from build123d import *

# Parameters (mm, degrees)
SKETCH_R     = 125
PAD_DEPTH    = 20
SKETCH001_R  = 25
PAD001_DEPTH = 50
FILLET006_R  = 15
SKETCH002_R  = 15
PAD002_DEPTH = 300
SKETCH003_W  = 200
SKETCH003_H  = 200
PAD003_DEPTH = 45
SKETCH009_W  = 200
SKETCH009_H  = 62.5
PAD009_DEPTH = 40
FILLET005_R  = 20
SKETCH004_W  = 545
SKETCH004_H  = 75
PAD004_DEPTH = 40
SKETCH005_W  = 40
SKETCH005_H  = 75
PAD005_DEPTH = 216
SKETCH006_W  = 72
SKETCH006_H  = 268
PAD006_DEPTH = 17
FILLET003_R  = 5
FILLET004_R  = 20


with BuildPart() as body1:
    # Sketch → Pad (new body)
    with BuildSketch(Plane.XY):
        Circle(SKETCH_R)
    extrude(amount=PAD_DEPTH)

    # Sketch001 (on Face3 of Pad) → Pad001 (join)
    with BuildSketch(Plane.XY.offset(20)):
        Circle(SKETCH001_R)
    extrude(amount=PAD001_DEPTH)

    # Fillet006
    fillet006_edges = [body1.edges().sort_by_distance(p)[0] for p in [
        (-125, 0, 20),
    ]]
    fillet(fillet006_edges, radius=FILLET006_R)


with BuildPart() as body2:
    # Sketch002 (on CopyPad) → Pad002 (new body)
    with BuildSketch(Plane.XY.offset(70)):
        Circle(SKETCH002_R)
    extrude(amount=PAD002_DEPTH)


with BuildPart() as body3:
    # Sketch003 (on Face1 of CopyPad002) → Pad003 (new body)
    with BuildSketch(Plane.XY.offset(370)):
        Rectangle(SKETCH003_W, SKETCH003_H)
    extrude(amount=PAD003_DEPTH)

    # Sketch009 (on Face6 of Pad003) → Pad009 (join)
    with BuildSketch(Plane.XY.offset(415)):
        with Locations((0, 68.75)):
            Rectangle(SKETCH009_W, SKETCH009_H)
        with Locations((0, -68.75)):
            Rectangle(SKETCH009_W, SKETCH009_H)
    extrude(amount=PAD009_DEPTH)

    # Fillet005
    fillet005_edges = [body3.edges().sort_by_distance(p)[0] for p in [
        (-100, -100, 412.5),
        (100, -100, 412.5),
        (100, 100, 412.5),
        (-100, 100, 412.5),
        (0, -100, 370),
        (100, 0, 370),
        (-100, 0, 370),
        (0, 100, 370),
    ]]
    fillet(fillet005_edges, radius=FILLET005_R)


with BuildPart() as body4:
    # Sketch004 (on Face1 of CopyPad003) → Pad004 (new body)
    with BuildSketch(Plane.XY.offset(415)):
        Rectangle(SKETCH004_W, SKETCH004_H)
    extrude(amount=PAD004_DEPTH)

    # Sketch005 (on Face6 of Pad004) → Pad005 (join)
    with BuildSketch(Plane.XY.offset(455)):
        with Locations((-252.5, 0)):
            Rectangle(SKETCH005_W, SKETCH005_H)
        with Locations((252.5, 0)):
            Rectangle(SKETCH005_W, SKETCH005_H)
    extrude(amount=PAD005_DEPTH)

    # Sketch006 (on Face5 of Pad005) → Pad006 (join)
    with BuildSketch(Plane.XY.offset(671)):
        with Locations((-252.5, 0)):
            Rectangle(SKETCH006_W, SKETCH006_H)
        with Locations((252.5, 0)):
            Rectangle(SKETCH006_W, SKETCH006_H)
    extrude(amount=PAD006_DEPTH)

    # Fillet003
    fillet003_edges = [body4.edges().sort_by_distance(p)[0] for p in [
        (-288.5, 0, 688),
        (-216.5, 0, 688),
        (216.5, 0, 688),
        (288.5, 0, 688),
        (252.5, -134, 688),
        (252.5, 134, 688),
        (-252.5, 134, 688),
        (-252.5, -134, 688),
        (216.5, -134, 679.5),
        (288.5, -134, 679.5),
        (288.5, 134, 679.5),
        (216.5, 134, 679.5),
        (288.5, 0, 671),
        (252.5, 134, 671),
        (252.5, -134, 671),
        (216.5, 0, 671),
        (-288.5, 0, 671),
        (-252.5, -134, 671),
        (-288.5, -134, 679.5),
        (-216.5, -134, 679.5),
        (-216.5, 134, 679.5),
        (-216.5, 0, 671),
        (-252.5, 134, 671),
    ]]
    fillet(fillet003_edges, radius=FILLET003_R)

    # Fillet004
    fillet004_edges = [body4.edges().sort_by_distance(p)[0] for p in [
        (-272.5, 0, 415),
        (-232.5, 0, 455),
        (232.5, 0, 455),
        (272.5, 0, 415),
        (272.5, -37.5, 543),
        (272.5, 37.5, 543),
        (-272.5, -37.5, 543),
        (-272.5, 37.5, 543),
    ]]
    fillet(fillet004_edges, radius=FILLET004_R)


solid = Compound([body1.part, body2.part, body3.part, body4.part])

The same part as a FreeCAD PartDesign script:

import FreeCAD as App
import Part
import Sketcher
from FreeCAD import Vector
Q = App.Units.Quantity


def edges_at(feature, points):
    """Names of the edges that pass closest to the given points."""
    edges = feature.Shape.Edges
    near = lambda p: min(range(len(edges)), key=lambda i: edges[i].distToShape(Part.Vertex(*p))[0])
    return sorted({f"Edge{near(p) + 1}" for p in points})


def add_polygon(sketch, points):
    """Adds a closed chain of lines whose ends are joined by coincident constraints."""
    first, n = sketch.GeometryCount, len(points)
    for a, b in zip(points, points[1:] + points[:1]):
        sketch.addGeometry(Part.LineSegment(App.Vector(*a, 0), App.Vector(*b, 0)), False)
    for i in range(n):
        sketch.addConstraint(Sketcher.Constraint("Coincident", first + i, 2, first + (i + 1) % n, 1))

doc = App.newDocument("Part")
body = doc.addObject("PartDesign::Body", "Body")

# Sketch on XY plane
sketch1 = body.newObject("Sketcher::SketchObject", "Sketch")
sketch1.AttachmentSupport = (doc.getObject("XY_Plane"), [""])
sketch1.MapMode = "FlatFace"
sketch1.addGeometry(Part.Circle(Vector(0, 0, 0), Vector(0, 0, 1), 125), False)
sketch1.addConstraint([
    Sketcher.Constraint("Coincident", 0, 3, -1, 1),
    Sketcher.Constraint("Diameter", 0, Q("250 mm")),
])
pad1 = body.newObject("PartDesign::Pad", "Pad")
pad1.Profile = sketch1
pad1.Length = 20

# Sketch on XY plane
sketch2 = body.newObject("Sketcher::SketchObject", "Sketch001")
sketch2.AttachmentSupport = (doc.getObject("XY_Plane"), [""])
sketch2.MapMode = "FlatFace"
sketch2.AttachmentOffset = App.Placement(Vector(0, 0, 20), App.Rotation())
sketch2.addGeometry(Part.Circle(Vector(0, 0, 0), Vector(0, 0, 1), 25), False)
sketch2.addConstraint([
    Sketcher.Constraint("Coincident", 0, 3, -1, 1),
    Sketcher.Constraint("Diameter", 0, Q("50 mm")),
])
pad2 = body.newObject("PartDesign::Pad", "Pad001")
pad2.Profile = sketch2
pad2.Length = 50
doc.recompute()

fillet = body.newObject("PartDesign::Fillet", "Fillet")
fillet.Base = (pad2, edges_at(pad2, [(-125, 0, 20)]))
fillet.Radius = 15
body2 = doc.addObject("PartDesign::Body", "Body001")

# Sketch on XY plane
sketch3 = body2.newObject("Sketcher::SketchObject", "Sketch002")
sketch3.AttachmentSupport = (doc.getObject("XY_Plane001"), [""])
sketch3.MapMode = "FlatFace"
sketch3.AttachmentOffset = App.Placement(Vector(0, 0, 70), App.Rotation())
sketch3.addGeometry(Part.Circle(Vector(0, 0, 0), Vector(0, 0, 1), 15), False)
sketch3.addConstraint([
    Sketcher.Constraint("Coincident", 0, 3, -1, 1),
    Sketcher.Constraint("Diameter", 0, Q("30 mm")),
])
pad3 = body2.newObject("PartDesign::Pad", "Pad002")
pad3.Profile = sketch3
pad3.Length = 300
body3 = doc.addObject("PartDesign::Body", "Body002")

# Sketch on XY plane
sketch4 = body3.newObject("Sketcher::SketchObject", "Sketch003")
sketch4.AttachmentSupport = (doc.getObject("XY_Plane002"), [""])
sketch4.MapMode = "FlatFace"
sketch4.AttachmentOffset = App.Placement(Vector(0, 0, 370), App.Rotation())
add_polygon(sketch4, [(-100, 100), (-100, -100), (100, -100), (100, 100)])  # lines 0-3
sketch4.addConstraint([
    Sketcher.Constraint("Vertical", 0),
    Sketcher.Constraint("Horizontal", 1),
    Sketcher.Constraint("Vertical", 2),
    Sketcher.Constraint("Horizontal", 3),
    Sketcher.Constraint("Symmetric", 0, 2, 2, 2, -1, 1),
    Sketcher.Constraint("Equal", 3, 0),
    Sketcher.Constraint("DistanceX", 1, 1, 1, 2, Q("200 mm")),
])
pad4 = body3.newObject("PartDesign::Pad", "Pad003")
pad4.Profile = sketch4
pad4.Length = 45

# Sketch on XY plane
sketch5 = body3.newObject("Sketcher::SketchObject", "Sketch004")
sketch5.AttachmentSupport = (doc.getObject("XY_Plane002"), [""])
sketch5.MapMode = "FlatFace"
sketch5.AttachmentOffset = App.Placement(Vector(0, 0, 415), App.Rotation())
add_polygon(sketch5, [(-100, 100), (-100, 38), (100, 38), (100, 100)])  # lines 0-3
add_polygon(sketch5, [(-100, -38), (-100, -100), (100, -100), (100, -38)])  # lines 4-7
sketch5.addConstraint([
    Sketcher.Constraint("Vertical", 0),
    Sketcher.Constraint("Horizontal", 1),
    Sketcher.Constraint("Vertical", 2),
    Sketcher.Constraint("Horizontal", 3),
    Sketcher.Constraint("Vertical", 4),
    Sketcher.Constraint("Horizontal", 5),
    Sketcher.Constraint("Vertical", 6),
    Sketcher.Constraint("Horizontal", 7),
    Sketcher.Constraint("Symmetric", 2, 2, 4, 2, -1, 1),
    Sketcher.Constraint("Symmetric", 0, 2, 6, 2, -1, 1),
    Sketcher.Constraint("Vertical", 3, 2, 4, 2),
    Sketcher.Constraint("DistanceX", 1, 1, 1, 2, Q("200 mm")),
    Sketcher.Constraint("DistanceY", 0, 2, 0, 1, Q("62.5 mm")),
    Sketcher.Constraint("DistanceY", -1, 1, 2, 2, Q("100 mm")),
])
pad5 = body3.newObject("PartDesign::Pad", "Pad004")
pad5.Profile = sketch5
pad5.Length = 40
doc.recompute()

fillet2 = body3.newObject("PartDesign::Fillet", "Fillet001")
fillet2.Base = (pad5, edges_at(pad5, [
    (-100, -100, 412.5),
    (100, -100, 412.5),
    (100, 100, 412.5),
    (-100, 100, 412.5),
    (0, -100, 370),
    (100, 0, 370),
    (-100, 0, 370),
    (0, 100, 370),
]))
fillet2.Radius = 20
body4 = doc.addObject("PartDesign::Body", "Body003")

# Sketch on XY plane
sketch6 = body4.newObject("Sketcher::SketchObject", "Sketch005")
sketch6.AttachmentSupport = (doc.getObject("XY_Plane003"), [""])
sketch6.MapMode = "FlatFace"
sketch6.AttachmentOffset = App.Placement(Vector(0, 0, 415), App.Rotation())
add_polygon(sketch6, [(-272, 38), (-272, -38), (272, -38), (272, 38)])  # lines 0-3
sketch6.addConstraint([
    Sketcher.Constraint("Vertical", 0),
    Sketcher.Constraint("Horizontal", 1),
    Sketcher.Constraint("Vertical", 2),
    Sketcher.Constraint("Horizontal", 3),
    Sketcher.Constraint("Symmetric", 0, 2, 2, 2, -1, 1),
    Sketcher.Constraint("DistanceX", 1, 1, 1, 2, Q("545 mm")),
    Sketcher.Constraint("DistanceY", 0, 2, 0, 1, Q("75 mm")),
])
pad6 = body4.newObject("PartDesign::Pad", "Pad005")
pad6.Profile = sketch6
pad6.Length = 40

# Sketch on XY plane
sketch7 = body4.newObject("Sketcher::SketchObject", "Sketch006")
sketch7.AttachmentSupport = (doc.getObject("XY_Plane003"), [""])
sketch7.MapMode = "FlatFace"
sketch7.AttachmentOffset = App.Placement(Vector(0, 0, 455), App.Rotation())
add_polygon(sketch7, [(-272, 38), (-272, -38), (-232, -38), (-232, 38)])  # lines 0-3
add_polygon(sketch7, [(232, 38), (232, -38), (272, -38), (272, 38)])  # lines 4-7
sketch7.addConstraint([
    Sketcher.Constraint("Vertical", 0),
    Sketcher.Constraint("Horizontal", 1),
    Sketcher.Constraint("Vertical", 2),
    Sketcher.Constraint("Horizontal", 3),
    Sketcher.Constraint("Vertical", 4),
    Sketcher.Constraint("Horizontal", 5),
    Sketcher.Constraint("Vertical", 6),
    Sketcher.Constraint("Horizontal", 7),
    Sketcher.Constraint("Symmetric", 2, 2, 4, 2, -1, 1),
    Sketcher.Constraint("Symmetric", 0, 2, 6, 2, -1, 1),
    Sketcher.Constraint("Horizontal", 1, 2, 4, 2),
    Sketcher.Constraint("DistanceX", 1, 1, 1, 2, Q("40 mm")),
    Sketcher.Constraint("DistanceY", 0, 2, 0, 1, Q("75 mm")),
    Sketcher.Constraint("DistanceX", 1, 2, 4, 2, Q("465 mm")),
])
pad7 = body4.newObject("PartDesign::Pad", "Pad006")
pad7.Profile = sketch7
pad7.Length = 216

# Sketch on XY plane
sketch8 = body4.newObject("Sketcher::SketchObject", "Sketch007")
sketch8.AttachmentSupport = (doc.getObject("XY_Plane003"), [""])
sketch8.MapMode = "FlatFace"
sketch8.AttachmentOffset = App.Placement(Vector(0, 0, 671), App.Rotation())
add_polygon(sketch8, [(-288, 134), (-288, -134), (-216, -134), (-216, 134)])  # lines 0-3
add_polygon(sketch8, [(216, 134), (216, -134), (288, -134), (288, 134)])  # lines 4-7
sketch8.addConstraint([
    Sketcher.Constraint("Vertical", 0),
    Sketcher.Constraint("Horizontal", 1),
    Sketcher.Constraint("Vertical", 2),
    Sketcher.Constraint("Horizontal", 3),
    Sketcher.Constraint("Vertical", 4),
    Sketcher.Constraint("Horizontal", 5),
    Sketcher.Constraint("Vertical", 6),
    Sketcher.Constraint("Horizontal", 7),
    Sketcher.Constraint("Symmetric", 2, 2, 4, 2, -1, 1),
    Sketcher.Constraint("Symmetric", 0, 2, 6, 2, -1, 1),
    Sketcher.Constraint("Horizontal", 1, 2, 4, 2),
    Sketcher.Constraint("DistanceX", 1, 1, 1, 2, Q("72 mm")),
    Sketcher.Constraint("DistanceY", 0, 2, 0, 1, Q("268 mm")),
    Sketcher.Constraint("DistanceX", 1, 2, 4, 2, Q("433 mm")),
])
pad8 = body4.newObject("PartDesign::Pad", "Pad007")
pad8.Profile = sketch8
pad8.Length = 17
doc.recompute()

fillet3 = body4.newObject("PartDesign::Fillet", "Fillet002")
fillet3.Base = (pad8, edges_at(pad8, [
    (-288.5, 0, 688),
    (-216.5, 0, 688),
    (216.5, 0, 688),
    (288.5, 0, 688),
    (252.5, -134, 688),
    (252.5, 134, 688),
    (-252.5, 134, 688),
    (-252.5, -134, 688),
    (216.5, -134, 679.5),
    (288.5, -134, 679.5),
    (288.5, 134, 679.5),
    (216.5, 134, 679.5),
    (288.5, 0, 671),
    (252.5, 134, 671),
    (252.5, -134, 671),
    (216.5, 0, 671),
    (-288.5, 0, 671),
    (-252.5, -134, 671),
    (-288.5, -134, 679.5),
    (-216.5, -134, 679.5),
    (-216.5, 134, 679.5),
    (-216.5, 0, 671),
    (-252.5, 134, 671),
]))
fillet3.Radius = 5
doc.recompute()

fillet4 = body4.newObject("PartDesign::Fillet", "Fillet003")
fillet4.Base = (fillet3, edges_at(fillet3, [
    (-272.5, 0, 415),
    (-232.5, 0, 455),
    (232.5, 0, 455),
    (272.5, 0, 415),
    (272.5, -37.5, 543),
    (272.5, 37.5, 543),
    (-272.5, -37.5, 543),
    (-272.5, 37.5, 543),
]))
fillet4.Radius = 20

doc.recompute()
